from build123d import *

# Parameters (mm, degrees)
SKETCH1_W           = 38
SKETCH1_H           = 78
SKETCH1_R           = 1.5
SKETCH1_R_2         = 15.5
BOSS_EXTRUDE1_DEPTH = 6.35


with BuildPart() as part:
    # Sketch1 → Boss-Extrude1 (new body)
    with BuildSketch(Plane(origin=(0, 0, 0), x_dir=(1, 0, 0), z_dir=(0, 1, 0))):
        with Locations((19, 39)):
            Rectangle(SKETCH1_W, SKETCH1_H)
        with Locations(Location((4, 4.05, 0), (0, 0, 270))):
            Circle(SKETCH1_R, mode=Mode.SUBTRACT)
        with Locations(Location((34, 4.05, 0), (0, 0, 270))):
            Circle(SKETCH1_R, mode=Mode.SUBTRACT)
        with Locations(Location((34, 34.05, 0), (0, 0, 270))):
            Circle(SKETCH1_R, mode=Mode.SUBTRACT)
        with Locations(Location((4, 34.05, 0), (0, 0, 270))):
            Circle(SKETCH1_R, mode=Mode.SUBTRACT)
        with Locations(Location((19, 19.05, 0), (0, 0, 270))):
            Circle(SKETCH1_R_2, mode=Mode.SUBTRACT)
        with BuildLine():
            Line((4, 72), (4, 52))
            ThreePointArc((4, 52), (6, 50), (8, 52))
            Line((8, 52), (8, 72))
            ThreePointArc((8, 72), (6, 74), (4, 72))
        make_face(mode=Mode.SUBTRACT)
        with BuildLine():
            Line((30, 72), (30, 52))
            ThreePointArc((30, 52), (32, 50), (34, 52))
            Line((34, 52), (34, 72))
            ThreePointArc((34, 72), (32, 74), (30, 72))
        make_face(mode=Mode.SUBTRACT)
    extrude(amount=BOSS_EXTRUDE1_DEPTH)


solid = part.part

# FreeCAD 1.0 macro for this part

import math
import FreeCAD as App
import Part
import Sketcher
from FreeCAD import Vector

doc = App.newDocument("Part")
body = doc.addObject("PartDesign::Body", "Body")

# Sketch on XZ plane
sketch1 = doc.addObject("Sketcher::SketchObject", "Sketch")
body.addObject(sketch1)
sketch1.AttachmentSupport = (doc.XZ_Plane, [""])
sketch1.MapMode = "FlatFace"
sketch1.addGeometry(Part.LineSegment(Vector(0, -78, 0), Vector(0, 0, 0)), False)
sketch1.addGeometry(Part.LineSegment(Vector(0, 0, 0), Vector(38, 0, 0)), False)
sketch1.addGeometry(Part.LineSegment(Vector(38, 0, 0), Vector(38, -78, 0)), False)
sketch1.addGeometry(Part.LineSegment(Vector(38, -78, 0), Vector(0, -78, 0)), False)
sketch1.addGeometry(Part.Circle(Vector(4, -4, 0), Vector(0, 0, 1), 1.5), False)
sketch1.addGeometry(Part.Circle(Vector(4, -34, 0), Vector(0, 0, 1), 1.5), False)
sketch1.addGeometry(Part.Circle(Vector(19, -19.1, 0), Vector(0, 0, 1), 15.5), False)
sketch1.addGeometry(Part.Circle(Vector(34, -4, 0), Vector(0, 0, 1), 1.5), False)
sketch1.addGeometry(Part.Circle(Vector(34, -34, 0), Vector(0, 0, 1), 1.5), False)
sketch1.addGeometry(Part.LineSegment(Vector(4, -52, 0), Vector(4, -72, 0)), False)
sketch1.addGeometry(Part.ArcOfCircle(Part.Circle(Vector(6, -72, 0), Vector(0, 0, 1), 2), math.radians(180), math.radians(360)), False)
sketch1.addGeometry(Part.LineSegment(Vector(8, -72, 0), Vector(8, -52, 0)), False)
sketch1.addGeometry(Part.ArcOfCircle(Part.Circle(Vector(6, -52, 0), Vector(0, 0, 1), 2), math.radians(0), math.radians(180)), False)
sketch1.addGeometry(Part.LineSegment(Vector(30, -52, 0), Vector(30, -72, 0)), False)
sketch1.addGeometry(Part.ArcOfCircle(Part.Circle(Vector(32, -72, 0), Vector(0, 0, 1), 2), math.radians(180), math.radians(360)), False)
sketch1.addGeometry(Part.LineSegment(Vector(34, -72, 0), Vector(34, -52, 0)), False)
sketch1.addGeometry(Part.ArcOfCircle(Part.Circle(Vector(32, -52, 0), Vector(0, 0, 1), 2), math.radians(0), math.radians(180)), False)
sketch1.addConstraint(Sketcher.Constraint("Coincident", 0, 2, 1, 1))
sketch1.addConstraint(Sketcher.Constraint("Coincident", 1, 2, 2, 1))
sketch1.addConstraint(Sketcher.Constraint("Coincident", 2, 2, 3, 1))
sketch1.addConstraint(Sketcher.Constraint("Coincident", 3, 2, 0, 1))
sketch1.addConstraint(Sketcher.Constraint("Tangent", 9, 2, 10, 1))
sketch1.addConstraint(Sketcher.Constraint("Tangent", 10, 2, 11, 1))
sketch1.addConstraint(Sketcher.Constraint("Tangent", 11, 2, 12, 1))
sketch1.addConstraint(Sketcher.Constraint("Tangent", 12, 2, 9, 1))
sketch1.addConstraint(Sketcher.Constraint("Tangent", 13, 2, 14, 1))
sketch1.addConstraint(Sketcher.Constraint("Tangent", 14, 2, 15, 1))
sketch1.addConstraint(Sketcher.Constraint("Tangent", 15, 2, 16, 1))
sketch1.addConstraint(Sketcher.Constraint("Tangent", 16, 2, 13, 1))
sketch1.addConstraint(Sketcher.Constraint("Vertical", 0))
sketch1.addConstraint(Sketcher.Constraint("Horizontal", 1))
sketch1.addConstraint(Sketcher.Constraint("Vertical", 2))
sketch1.addConstraint(Sketcher.Constraint("Horizontal", 3))
sketch1.addConstraint(Sketcher.Constraint("Vertical", 9))
sketch1.addConstraint(Sketcher.Constraint("Vertical", 11))
sketch1.addConstraint(Sketcher.Constraint("Vertical", 13))
sketch1.addConstraint(Sketcher.Constraint("Vertical", 15))
sketch1.addConstraint(Sketcher.Constraint("Coincident", 0, 2, -1, 1))
sketch1.addConstraint(Sketcher.Constraint("Equal", 4, 5))
sketch1.addConstraint(Sketcher.Constraint("Equal", 5, 7))
sketch1.addConstraint(Sketcher.Constraint("Equal", 7, 8))
sketch1.addConstraint(Sketcher.Constraint("Equal", 12, 14))
sketch1.addConstraint(Sketcher.Constraint("Horizontal", 4, 3, 7, 3))
sketch1.addConstraint(Sketcher.Constraint("Horizontal", 5, 3, 8, 3))
sketch1.addConstraint(Sketcher.Constraint("Horizontal", 10, 3, 14, 3))
sketch1.addConstraint(Sketcher.Constraint("Horizontal", 12, 3, 16, 3))
sketch1.addConstraint(Sketcher.Constraint("Vertical", 4, 3, 5, 3))
sketch1.addConstraint(Sketcher.Constraint("Vertical", 7, 3, 8, 3))
sketch1.addConstraint(Sketcher.Constraint("Vertical", 5, 3, 9, 2))
sketch1.addConstraint(Sketcher.Constraint("Vertical", 8, 3, 14, 2))
sketch1.addConstraint(Sketcher.Constraint("Diameter", 4, 3.0))
sketch1.addConstraint(Sketcher.Constraint("Diameter", 6, 31.0))
sketch1.addConstraint(Sketcher.Constraint("Radius", 10, 2.0))
sketch1.addConstraint(Sketcher.Constraint("DistanceX", 1, 1, 1, 2, 38.0))
sketch1.addConstraint(Sketcher.Constraint("DistanceY", 0, 1, 0, 2, 78.0))
sketch1.addConstraint(Sketcher.Constraint("DistanceY", 9, 2, 9, 1, 20.0))
sketch1.addConstraint(Sketcher.Constraint("DistanceX", -1, 1, 4, 3, 4.0))
sketch1.addConstraint(Sketcher.Constraint("DistanceX", -1, 1, 6, 3, 19.0))
sketch1.addConstraint(Sketcher.Constraint("DistanceX", -1, 1, 7, 3, 34.0))
sketch1.addConstraint(Sketcher.Constraint("DistanceY", 10, 3, -1, 1, 72.0))
sketch1.addConstraint(Sketcher.Constraint("DistanceY", 5, 3, 4, 3, 30.0))
sketch1.addConstraint(Sketcher.Constraint("DistanceY", 5, 3, 6, 3, 15.0))
sketch1.addConstraint(Sketcher.Constraint("DistanceY", 4, 3, -1, 1, 4.05))
pad1 = doc.addObject("PartDesign::Pad", "Pad")
body.addObject(pad1)
pad1.Profile = sketch1
pad1.Length = 6.35
pad1.Reversed = True

doc.recompute()
